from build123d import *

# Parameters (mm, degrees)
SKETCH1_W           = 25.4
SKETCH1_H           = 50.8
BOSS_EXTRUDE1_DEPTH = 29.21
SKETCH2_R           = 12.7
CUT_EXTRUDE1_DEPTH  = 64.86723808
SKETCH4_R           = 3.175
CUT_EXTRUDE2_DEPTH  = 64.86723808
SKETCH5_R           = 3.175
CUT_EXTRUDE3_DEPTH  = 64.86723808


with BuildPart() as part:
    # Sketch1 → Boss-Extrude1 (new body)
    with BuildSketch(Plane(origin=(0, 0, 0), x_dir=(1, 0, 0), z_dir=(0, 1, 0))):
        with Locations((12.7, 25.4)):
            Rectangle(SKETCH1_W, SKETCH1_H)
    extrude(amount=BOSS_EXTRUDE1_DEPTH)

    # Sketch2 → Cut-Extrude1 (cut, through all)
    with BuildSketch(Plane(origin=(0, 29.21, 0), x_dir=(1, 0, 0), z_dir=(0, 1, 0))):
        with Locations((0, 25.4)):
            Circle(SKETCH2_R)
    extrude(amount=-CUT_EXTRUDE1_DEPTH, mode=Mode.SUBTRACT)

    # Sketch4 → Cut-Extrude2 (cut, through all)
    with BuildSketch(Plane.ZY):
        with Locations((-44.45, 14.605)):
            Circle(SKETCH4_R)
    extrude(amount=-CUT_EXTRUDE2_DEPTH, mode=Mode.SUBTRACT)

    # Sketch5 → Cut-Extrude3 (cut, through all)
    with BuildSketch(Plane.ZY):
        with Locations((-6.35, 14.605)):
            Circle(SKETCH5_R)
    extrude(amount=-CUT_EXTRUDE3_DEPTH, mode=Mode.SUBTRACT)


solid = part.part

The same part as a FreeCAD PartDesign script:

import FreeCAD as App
import Part
import Sketcher
Q = App.Units.Quantity


def add_polygon(sketch, points):
    """Adds a closed chain of lines whose ends are joined by coincident constraints."""
    first, n = sketch.GeometryCount, len(points)
    for a, b in zip(points, points[1:] + points[:1]):
        sketch.addGeometry(Part.LineSegment(App.Vector(*a, 0), App.Vector(*b, 0)), False)
    for i in range(n):
        sketch.addConstraint(Sketcher.Constraint("Coincident", first + i, 2, first + (i + 1) % n, 1))

doc = App.newDocument("Part")
body = doc.addObject("PartDesign::Body", "Body")

sketch1 = body.newObject("Sketcher::SketchObject", "Sketch")
sketch1.AttachmentSupport = (doc.getObject("XZ_Plane"), [""])
sketch1.MapMode = "FlatFace"
add_polygon(sketch1, [(0, -51), (0, 0), (25, 0), (25, -51)])
sketch1.addConstraint([
    Sketcher.Constraint("Vertical", 0),
    Sketcher.Constraint("Horizontal", 1),
    Sketcher.Constraint("Vertical", 2),
    Sketcher.Constraint("Horizontal", 3),
    Sketcher.Constraint("Coincident", 0, 2, -1, 1),
    Sketcher.Constraint("DistanceX", 1, 1, 1, 2, Q("1 in")),
    Sketcher.Constraint("DistanceY", 0, 1, 0, 2, Q("2 in")),
])
pad1 = body.newObject("PartDesign::Pad", "Pad")
pad1.Profile = sketch1
pad1.Length = Q("1.15 in")
pad1.Reversed = True

sketch2 = body.newObject("Sketcher::SketchObject", "Sketch001")
sketch2.AttachmentSupport = (doc.getObject("XZ_Plane"), [""])
sketch2.MapMode = "FlatFace"
sketch2.AttachmentOffset = App.Placement(App.Vector(0, 0, -1.15 * 25.4), App.Rotation())
sketch2.addGeometry(Part.Circle(App.Vector(0, -25, 0), App.Vector(0, 0, 1), 13), False)
sketch2.addConstraint([
    Sketcher.Constraint("PointOnObject", 0, 3, -2),
    Sketcher.Constraint("Diameter", 0, Q("1 in")),
    Sketcher.Constraint("DistanceY", 0, 3, -1, 1, Q("1 in")),
])
pocket1 = body.newObject("PartDesign::Pocket", "Pocket")
pocket1.Profile = sketch2
pocket1.Type = "ThroughAll"
pocket1.Reversed = True

sketch3 = body.newObject("Sketcher::SketchObject", "Sketch002")
sketch3.AttachmentSupport = (doc.getObject("YZ_Plane"), [""])
sketch3.MapMode = "FlatFace"
sketch3.addGeometry(Part.Circle(App.Vector(14.6, -44.5, 0), App.Vector(0, 0, 1), 3.2), False)
sketch3.addConstraint([
    Sketcher.Constraint("Diameter", 0, Q("0.25 in")),
    Sketcher.Constraint("DistanceY", 0, 3, -1, 1, Q("1.75 in")),
    Sketcher.Constraint("DistanceX", -1, 1, 0, 3, Q("0.575 in")),
])
pocket2 = body.newObject("PartDesign::Pocket", "Pocket001")
pocket2.Profile = sketch3
pocket2.Type = "ThroughAll"
pocket2.Reversed = True

sketch4 = body.newObject("Sketcher::SketchObject", "Sketch003")
sketch4.AttachmentSupport = (doc.getObject("YZ_Plane"), [""])
sketch4.MapMode = "FlatFace"
sketch4.addGeometry(Part.Circle(App.Vector(14.6, -6.3, 0), App.Vector(0, 0, 1), 3.2), False)
sketch4.addConstraint([
    Sketcher.Constraint("Diameter", 0, Q("0.25 in")),
    Sketcher.Constraint("DistanceY", 0, 3, -1, 1, Q("0.25 in")),
    Sketcher.Constraint("DistanceX", -1, 1, 0, 3, Q("0.575 in")),
])
pocket3 = body.newObject("PartDesign::Pocket", "Pocket002")
pocket3.Profile = sketch4
pocket3.Type = "ThroughAll"
pocket3.Reversed = True

doc.recompute()
